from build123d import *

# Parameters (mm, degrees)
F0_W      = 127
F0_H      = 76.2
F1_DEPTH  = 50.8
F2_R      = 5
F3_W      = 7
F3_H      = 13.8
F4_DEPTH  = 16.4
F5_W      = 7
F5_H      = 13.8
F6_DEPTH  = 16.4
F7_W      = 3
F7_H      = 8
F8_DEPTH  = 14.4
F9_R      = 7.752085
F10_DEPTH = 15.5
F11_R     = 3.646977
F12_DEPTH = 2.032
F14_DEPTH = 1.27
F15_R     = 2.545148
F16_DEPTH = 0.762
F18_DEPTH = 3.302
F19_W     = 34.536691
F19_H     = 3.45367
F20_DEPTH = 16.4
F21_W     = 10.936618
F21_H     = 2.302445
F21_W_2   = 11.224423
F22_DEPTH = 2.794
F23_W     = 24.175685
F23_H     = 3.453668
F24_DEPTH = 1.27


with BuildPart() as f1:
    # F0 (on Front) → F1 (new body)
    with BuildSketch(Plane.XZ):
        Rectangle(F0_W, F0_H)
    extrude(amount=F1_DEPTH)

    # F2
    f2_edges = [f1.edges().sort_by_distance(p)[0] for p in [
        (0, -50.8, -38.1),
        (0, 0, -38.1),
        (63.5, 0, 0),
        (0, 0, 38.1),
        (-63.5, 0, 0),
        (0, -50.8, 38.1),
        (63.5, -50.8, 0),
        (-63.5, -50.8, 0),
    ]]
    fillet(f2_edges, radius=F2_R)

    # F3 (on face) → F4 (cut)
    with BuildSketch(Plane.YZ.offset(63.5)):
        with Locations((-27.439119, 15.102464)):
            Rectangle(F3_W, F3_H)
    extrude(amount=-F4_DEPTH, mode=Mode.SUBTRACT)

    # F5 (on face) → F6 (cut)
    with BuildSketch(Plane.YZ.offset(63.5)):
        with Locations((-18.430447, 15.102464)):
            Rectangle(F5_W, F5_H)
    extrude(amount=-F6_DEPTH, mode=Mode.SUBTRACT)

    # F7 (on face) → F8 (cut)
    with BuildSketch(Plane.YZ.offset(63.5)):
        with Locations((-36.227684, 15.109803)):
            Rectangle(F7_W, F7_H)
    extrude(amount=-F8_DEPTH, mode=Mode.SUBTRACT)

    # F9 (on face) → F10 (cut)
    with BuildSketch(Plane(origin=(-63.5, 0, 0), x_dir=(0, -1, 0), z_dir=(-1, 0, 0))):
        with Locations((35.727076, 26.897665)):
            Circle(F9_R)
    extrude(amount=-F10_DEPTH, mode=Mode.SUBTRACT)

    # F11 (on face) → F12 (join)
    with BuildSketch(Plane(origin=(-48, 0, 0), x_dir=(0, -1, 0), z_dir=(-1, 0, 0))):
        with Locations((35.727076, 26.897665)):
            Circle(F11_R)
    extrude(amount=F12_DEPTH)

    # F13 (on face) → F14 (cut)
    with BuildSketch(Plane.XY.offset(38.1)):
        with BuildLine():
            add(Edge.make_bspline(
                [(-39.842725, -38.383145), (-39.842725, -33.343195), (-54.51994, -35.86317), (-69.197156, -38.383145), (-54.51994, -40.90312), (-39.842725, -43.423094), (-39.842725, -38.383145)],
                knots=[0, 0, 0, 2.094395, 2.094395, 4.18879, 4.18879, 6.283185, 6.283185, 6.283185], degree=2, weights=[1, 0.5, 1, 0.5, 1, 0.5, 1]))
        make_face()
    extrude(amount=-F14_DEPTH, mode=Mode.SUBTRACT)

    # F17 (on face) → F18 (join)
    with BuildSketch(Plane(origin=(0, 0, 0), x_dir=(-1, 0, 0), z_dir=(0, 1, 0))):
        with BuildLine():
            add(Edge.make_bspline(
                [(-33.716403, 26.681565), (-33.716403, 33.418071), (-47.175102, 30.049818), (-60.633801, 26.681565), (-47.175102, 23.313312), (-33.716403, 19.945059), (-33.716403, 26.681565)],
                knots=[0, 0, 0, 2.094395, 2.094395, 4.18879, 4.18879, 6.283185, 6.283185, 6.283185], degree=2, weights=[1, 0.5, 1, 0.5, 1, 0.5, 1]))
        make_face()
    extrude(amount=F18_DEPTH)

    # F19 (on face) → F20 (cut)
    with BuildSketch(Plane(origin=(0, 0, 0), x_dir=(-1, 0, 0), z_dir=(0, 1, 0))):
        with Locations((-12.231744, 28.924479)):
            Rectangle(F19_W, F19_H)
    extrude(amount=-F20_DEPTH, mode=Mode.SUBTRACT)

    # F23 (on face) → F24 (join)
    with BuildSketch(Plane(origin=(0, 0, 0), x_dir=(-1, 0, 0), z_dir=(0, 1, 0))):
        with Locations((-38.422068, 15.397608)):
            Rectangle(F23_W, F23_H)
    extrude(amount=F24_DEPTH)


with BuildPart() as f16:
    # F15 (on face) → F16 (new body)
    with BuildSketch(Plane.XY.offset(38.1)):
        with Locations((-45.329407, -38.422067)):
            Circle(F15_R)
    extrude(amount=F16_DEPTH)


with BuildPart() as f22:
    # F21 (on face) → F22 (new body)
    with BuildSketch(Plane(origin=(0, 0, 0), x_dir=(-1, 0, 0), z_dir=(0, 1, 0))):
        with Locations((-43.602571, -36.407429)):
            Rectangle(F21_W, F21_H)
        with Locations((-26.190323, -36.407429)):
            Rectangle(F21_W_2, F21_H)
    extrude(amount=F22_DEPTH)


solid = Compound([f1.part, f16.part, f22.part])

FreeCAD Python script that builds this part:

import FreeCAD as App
import Part
import Sketcher

V = App.Vector
Q = App.Units.Quantity


def edges_at(feature, points):
    """Names of the edges that pass closest to the given points."""
    edges = feature.Shape.Edges
    near = lambda p: min(range(len(edges)), key=lambda i: edges[i].distToShape(Part.Vertex(*p))[0])
    return sorted({f"Edge{near(p) + 1}" for p in points})


def add_polygon(sketch, points):
    """Adds a closed chain of lines whose ends are joined by coincident constraints."""
    first, n = sketch.GeometryCount, len(points)
    for a, b in zip(points, points[1:] + points[:1]):
        sketch.addGeometry(Part.LineSegment(App.Vector(*a, 0), App.Vector(*b, 0)), False)
    for i in range(n):
        sketch.addConstraint(Sketcher.Constraint("Coincident", first + i, 2, first + (i + 1) % n, 1))

doc = App.newDocument("Part")
body = doc.addObject("PartDesign::Body", "Body")

sketch1 = body.newObject("Sketcher::SketchObject", "Sketch")
sketch1.AttachmentSupport = (doc.getObject("XZ_Plane"), [""])
sketch1.MapMode = "FlatFace"
add_polygon(sketch1, [(-64, 38), (-64, -38), (64, -38), (64, 38)])
sketch1.addConstraint([
    Sketcher.Constraint("Vertical", 0),
    Sketcher.Constraint("Horizontal", 1),
    Sketcher.Constraint("Vertical", 2),
    Sketcher.Constraint("Horizontal", 3),
    Sketcher.Constraint("Symmetric", 0, 2, 2, 2, -1, 1),
    Sketcher.Constraint("DistanceX", 1, 1, 1, 2, Q("127 mm")),
    Sketcher.Constraint("DistanceY", 0, 2, 0, 1, Q("76.2 mm")),
])
pad1 = body.newObject("PartDesign::Pad", "Pad")
pad1.Profile = sketch1
pad1.Length = 50.8
doc.recompute()

fillet = body.newObject("PartDesign::Fillet", "Fillet")
fillet.Base = (pad1, edges_at(pad1, [
    (0, -50.8, -38.1),
    (0, 0, -38.1),
    (63.5, 0, 0),
    (0, 0, 38.1),
    (-63.5, 0, 0),
    (0, -50.8, 38.1),
    (63.5, -50.8, 0),
    (-63.5, -50.8, 0),
]))
fillet.Radius = 5

sketch2 = body.newObject("Sketcher::SketchObject", "Sketch001")
sketch2.AttachmentSupport = (doc.getObject("YZ_Plane"), [""])
sketch2.MapMode = "FlatFace"
sketch2.AttachmentOffset = App.Placement(V(0, 0, 63.5), App.Rotation())
add_polygon(sketch2, [(-31, 22), (-31, 8), (-24, 8), (-24, 22)])
sketch2.addConstraint([
    Sketcher.Constraint("Vertical", 0),
    Sketcher.Constraint("Horizontal", 1),
    Sketcher.Constraint("Vertical", 2),
    Sketcher.Constraint("Horizontal", 3),
    Sketcher.Constraint("DistanceX", 1, 1, 1, 2, Q("7 mm")),
    Sketcher.Constraint("DistanceY", 0, 2, 0, 1, Q("13.8 mm")),
    Sketcher.Constraint("DistanceX", 0, 2, -1, 1, Q("30.939119 mm")),
    Sketcher.Constraint("DistanceY", -1, 1, 0, 2, Q("8.202464 mm")),
])
pocket1 = body.newObject("PartDesign::Pocket", "Pocket")
pocket1.Profile = sketch2
pocket1.Length = 16.4

sketch3 = body.newObject("Sketcher::SketchObject", "Sketch002")
sketch3.AttachmentSupport = (doc.getObject("YZ_Plane"), [""])
sketch3.MapMode = "FlatFace"
sketch3.AttachmentOffset = App.Placement(V(0, 0, 63.5), App.Rotation())
add_polygon(sketch3, [(-22, 22), (-22, 8), (-15, 8), (-15, 22)])
sketch3.addConstraint([
    Sketcher.Constraint("Vertical", 0),
    Sketcher.Constraint("Horizontal", 1),
    Sketcher.Constraint("Vertical", 2),
    Sketcher.Constraint("Horizontal", 3),
    Sketcher.Constraint("DistanceX", 1, 1, 1, 2, Q("7 mm")),
    Sketcher.Constraint("DistanceY", 0, 2, 0, 1, Q("13.8 mm")),
    Sketcher.Constraint("DistanceX", 0, 2, -1, 1, Q("21.930447 mm")),
    Sketcher.Constraint("DistanceY", -1, 1, 0, 2, Q("8.202464 mm")),
])
pocket2 = body.newObject("PartDesign::Pocket", "Pocket001")
pocket2.Profile = sketch3
pocket2.Length = 16.4

sketch4 = body.newObject("Sketcher::SketchObject", "Sketch003")
sketch4.AttachmentSupport = (doc.getObject("YZ_Plane"), [""])
sketch4.MapMode = "FlatFace"
sketch4.AttachmentOffset = App.Placement(V(0, 0, 63.5), App.Rotation())
add_polygon(sketch4, [(-37.7, 19.1), (-37.7, 11.1), (-34.7, 11.1), (-34.7, 19.1)])
sketch4.addConstraint([
    Sketcher.Constraint("Vertical", 0),
    Sketcher.Constraint("Horizontal", 1),
    Sketcher.Constraint("Vertical", 2),
    Sketcher.Constraint("Horizontal", 3),
    Sketcher.Constraint("DistanceX", 1, 1, 1, 2, Q("3 mm")),
    Sketcher.Constraint("DistanceY", 0, 2, 0, 1, Q("8 mm")),
    Sketcher.Constraint("DistanceX", 0, 2, -1, 1, Q("37.727684 mm")),
    Sketcher.Constraint("DistanceY", -1, 1, 0, 2, Q("11.109803 mm")),
])
pocket3 = body.newObject("PartDesign::Pocket", "Pocket002")
pocket3.Profile = sketch4
pocket3.Length = 14.4

sketch5 = body.newObject("Sketcher::SketchObject", "Sketch004")
sketch5.AttachmentSupport = (doc.getObject("YZ_Plane"), [""])
sketch5.MapMode = "FlatFace"
sketch5.AttachmentOffset = App.Placement(V(0, 0, -63.5), App.Rotation())
sketch5.addGeometry(Part.Circle(V(-36, 27, 0), V(0, 0, 1), 8), False)
sketch5.addConstraint([
    Sketcher.Constraint("Diameter", 0, Q("15.50417 mm")),
    Sketcher.Constraint("DistanceX", 0, 3, -1, 1, Q("35.727076 mm")),
    Sketcher.Constraint("DistanceY", -1, 1, 0, 3, Q("26.897665 mm")),
])
pocket4 = body.newObject("PartDesign::Pocket", "Pocket003")
pocket4.Profile = sketch5
pocket4.Length = 15.5
pocket4.Reversed = True

sketch6 = body.newObject("Sketcher::SketchObject", "Sketch005")
sketch6.AttachmentSupport = (doc.getObject("YZ_Plane"), [""])
sketch6.MapMode = "FlatFace"
sketch6.AttachmentOffset = App.Placement(V(0, 0, -48), App.Rotation())
sketch6.addGeometry(Part.Circle(V(-35.7, 26.9, 0), V(0, 0, 1), 3.6), False)
sketch6.addConstraint([
    Sketcher.Constraint("Diameter", 0, Q("7.293954 mm")),
    Sketcher.Constraint("DistanceX", 0, 3, -1, 1, Q("35.727076 mm")),
    Sketcher.Constraint("DistanceY", -1, 1, 0, 3, Q("26.897665 mm")),
])
pad2 = body.newObject("PartDesign::Pad", "Pad001")
pad2.Profile = sketch6
pad2.Length = 2.032
pad2.Reversed = True

sketch7 = body.newObject("Sketcher::SketchObject", "Sketch006")
sketch7.AttachmentSupport = (doc.getObject("XY_Plane"), [""])
sketch7.MapMode = "FlatFace"
sketch7.AttachmentOffset = App.Placement(V(0, 0, 38.1), App.Rotation())
sketch7.addGeometry(Part.BSplineCurve([V(-39.842725, -38.383145, 0), V(-39.842725, -33.343195, 0), V(-54.51994, -35.86317, 0), V(-69.197156, -38.383145, 0), V(-54.51994, -40.90312, 0), V(-39.842725, -43.423094, 0), V(-39.842725, -38.383145, 0)], [3, 2, 2, 3], [0, 2.094395, 4.18879, 6.283185], False, 2, [1, 0.5, 1, 0.5, 1, 0.5, 1], False), False)
sketch7.addConstraint(Sketcher.Constraint("Block", 0))
pocket5 = body.newObject("PartDesign::Pocket", "Pocket004")
pocket5.Profile = sketch7
pocket5.Length = 1.27

sketch8 = body.newObject("Sketcher::SketchObject", "Sketch007")
sketch8.AttachmentSupport = (doc.getObject("XZ_Plane"), [""])
sketch8.MapMode = "FlatFace"
sketch8.addGeometry(Part.BSplineCurve([V(33.716403, 26.681565, 0), V(33.716403, 33.418071, 0), V(47.175102, 30.049818, 0), V(60.633801, 26.681565, 0), V(47.175102, 23.313312, 0), V(33.716403, 19.945059, 0), V(33.716403, 26.681565, 0)], [3, 2, 2, 3], [0, 2.094395, 4.18879, 6.283185], False, 2, [1, 0.5, 1, 0.5, 1, 0.5, 1], False), False)
sketch8.addConstraint(Sketcher.Constraint("Block", 0))
pad3 = body.newObject("PartDesign::Pad", "Pad002")
pad3.Profile = sketch8
pad3.Length = 3.302
pad3.Reversed = True

sketch9 = body.newObject("Sketcher::SketchObject", "Sketch008")
sketch9.AttachmentSupport = (doc.getObject("XZ_Plane"), [""])
sketch9.MapMode = "FlatFace"
add_polygon(sketch9, [(29.5, 30.7), (29.5, 27.2), (-5, 27.2), (-5, 30.7)])
sketch9.addConstraint([
    Sketcher.Constraint("Vertical", 0),
    Sketcher.Constraint("Horizontal", 1),
    Sketcher.Constraint("Vertical", 2),
    Sketcher.Constraint("Horizontal", 3),
    Sketcher.Constraint("DistanceX", 1, 2, 1, 1, Q("34.536691 mm")),
    Sketcher.Constraint("DistanceY", 0, 2, 0, 1, Q("3.45367 mm")),
    Sketcher.Constraint("DistanceX", 1, 2, -1, 1, Q("5.036601 mm")),
    Sketcher.Constraint("DistanceY", -1, 1, 0, 2, Q("27.197644 mm")),
])
pocket6 = body.newObject("PartDesign::Pocket", "Pocket005")
pocket6.Profile = sketch9
pocket6.Length = 16.4
pocket6.Reversed = True

sketch10 = body.newObject("Sketcher::SketchObject", "Sketch009")
sketch10.AttachmentSupport = (doc.getObject("XZ_Plane"), [""])
sketch10.MapMode = "FlatFace"
add_polygon(sketch10, [(50.5, 17.1), (50.5, 13.7), (26.3, 13.7), (26.3, 17.1)])
sketch10.addConstraint([
    Sketcher.Constraint("Vertical", 0),
    Sketcher.Constraint("Horizontal", 1),
    Sketcher.Constraint("Vertical", 2),
    Sketcher.Constraint("Horizontal", 3),
    Sketcher.Constraint("DistanceX", 1, 2, 1, 1, Q("24.175685 mm")),
    Sketcher.Constraint("DistanceY", 0, 2, 0, 1, Q("3.453668 mm")),
    Sketcher.Constraint("DistanceX", -1, 1, 0, 2, Q("50.50991 mm")),
    Sketcher.Constraint("DistanceY", -1, 1, 2, 2, Q("17.124442 mm")),
])
pad4 = body.newObject("PartDesign::Pad", "Pad003")
pad4.Profile = sketch10
pad4.Length = 1.27
pad4.Reversed = True
body2 = doc.addObject("PartDesign::Body", "Body001")

sketch11 = body2.newObject("Sketcher::SketchObject", "Sketch010")
sketch11.AttachmentSupport = (doc.getObject("XY_Plane001"), [""])
sketch11.MapMode = "FlatFace"
sketch11.AttachmentOffset = App.Placement(V(0, 0, 38.1), App.Rotation())
sketch11.addGeometry(Part.Circle(V(-45.3, -38.4, 0), V(0, 0, 1), 2.5), False)
sketch11.addConstraint([
    Sketcher.Constraint("Diameter", 0, Q("5.090296 mm")),
    Sketcher.Constraint("DistanceX", 0, 3, -1, 1, Q("45.329407 mm")),
    Sketcher.Constraint("DistanceY", 0, 3, -1, 1, Q("38.422067 mm")),
])
pad5 = body2.newObject("PartDesign::Pad", "Pad004")
pad5.Profile = sketch11
pad5.Length = 0.762
body3 = doc.addObject("PartDesign::Body", "Body002")
body3.AllowCompound = True

sketch12 = body3.newObject("Sketcher::SketchObject", "Sketch011")
sketch12.AttachmentSupport = (doc.getObject("XZ_Plane002"), [""])
sketch12.MapMode = "FlatFace"
add_polygon(sketch12, [(49.1, -35.3), (49.1, -37.6), (38.1, -37.6), (38.1, -35.3)])
add_polygon(sketch12, [(31.8, -35.3), (31.8, -37.6), (20.6, -37.6), (20.6, -35.3)])
sketch12.addConstraint([
    Sketcher.Constraint("Vertical", 0),
    Sketcher.Constraint("Horizontal", 1),
    Sketcher.Constraint("Vertical", 2),
    Sketcher.Constraint("Horizontal", 3),
    Sketcher.Constraint("Vertical", 4),
    Sketcher.Constraint("Horizontal", 5),
    Sketcher.Constraint("Vertical", 6),
    Sketcher.Constraint("Horizontal", 7),
    Sketcher.Constraint("Horizontal", 1, 2, 4, 2),
    Sketcher.Constraint("Horizontal", 3, 2, 6, 2),
    Sketcher.Constraint("DistanceX", 1, 2, 1, 1, Q("10.936618 mm")),
    Sketcher.Constraint("DistanceX", 5, 2, 5, 1, Q("11.224423 mm")),
    Sketcher.Constraint("DistanceY", 0, 2, 0, 1, Q("2.302445 mm")),
    Sketcher.Constraint("DistanceX", -1, 1, 0, 2, Q("49.07088 mm")),
    Sketcher.Constraint("DistanceY", 0, 2, -1, 1, Q("37.558652 mm")),
    Sketcher.Constraint("DistanceX", -1, 1, 5, 2, Q("20.578111 mm")),
])
pad6 = body3.newObject("PartDesign::Pad", "Pad005")
pad6.Profile = sketch12
pad6.Length = 2.794
pad6.Reversed = True

doc.recompute()
